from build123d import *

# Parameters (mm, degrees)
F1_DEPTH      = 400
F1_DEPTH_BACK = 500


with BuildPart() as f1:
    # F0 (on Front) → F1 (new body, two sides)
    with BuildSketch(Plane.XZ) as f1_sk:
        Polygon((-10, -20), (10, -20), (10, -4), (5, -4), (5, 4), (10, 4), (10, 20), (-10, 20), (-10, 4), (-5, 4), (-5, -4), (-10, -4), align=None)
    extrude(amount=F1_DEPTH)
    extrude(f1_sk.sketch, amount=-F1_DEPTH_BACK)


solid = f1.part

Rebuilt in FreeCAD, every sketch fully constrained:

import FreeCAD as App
import Part
import Sketcher
Q = App.Units.Quantity

doc = App.newDocument("Part")
params = doc.addObject("Spreadsheet::Sheet", "Params")
for row, (alias, value) in enumerate([
    ("sketch1_width", "20 mm"),
    ("sketch1_width2", "5 mm"),
    ("sketch1_height", "16 mm"),
    ("sketch1_height2", "8 mm"),
    ("pad1_length", "400 mm"),
    ("pad1_length2", "500 mm"),
], start=1):
    params.set(f"A{row}", alias)
    params.set(f"B{row}", "=" + value)
    params.setAlias(f"B{row}", alias)

body = doc.addObject("PartDesign::Body", "Body")

# Sketch on XZ plane
sketch1 = doc.addObject("Sketcher::SketchObject", "Sketch")
body.addObject(sketch1)
sketch1.AttachmentSupport = (doc.XZ_Plane, [""])
sketch1.MapMode = "FlatFace"
sketch1.addGeometry(Part.LineSegment(App.Vector(-10, -20, 0), App.Vector(10, -20, 0)), False)
sketch1.addGeometry(Part.LineSegment(App.Vector(10, -20, 0), App.Vector(10, -4, 0)), False)
sketch1.addGeometry(Part.LineSegment(App.Vector(10, -4, 0), App.Vector(5, -4, 0)), False)
sketch1.addGeometry(Part.LineSegment(App.Vector(5, -4, 0), App.Vector(5, 4, 0)), False)
sketch1.addGeometry(Part.LineSegment(App.Vector(5, 4, 0), App.Vector(10, 4, 0)), False)
sketch1.addGeometry(Part.LineSegment(App.Vector(10, 4, 0), App.Vector(10, 20, 0)), False)
sketch1.addGeometry(Part.LineSegment(App.Vector(10, 20, 0), App.Vector(-10, 20, 0)), False)
sketch1.addGeometry(Part.LineSegment(App.Vector(-10, 20, 0), App.Vector(-10, 4, 0)), False)
sketch1.addGeometry(Part.LineSegment(App.Vector(-10, 4, 0), App.Vector(-5, 4, 0)), False)
sketch1.addGeometry(Part.LineSegment(App.Vector(-5, 4, 0), App.Vector(-5, -4, 0)), False)
sketch1.addGeometry(Part.LineSegment(App.Vector(-5, -4, 0), App.Vector(-10, -4, 0)), False)
sketch1.addGeometry(Part.LineSegment(App.Vector(-10, -4, 0), App.Vector(-10, -20, 0)), False)
sketch1.addConstraint(Sketcher.Constraint("Coincident", 0, 2, 1, 1))
sketch1.addConstraint(Sketcher.Constraint("Coincident", 1, 2, 2, 1))
sketch1.addConstraint(Sketcher.Constraint("Coincident", 2, 2, 3, 1))
sketch1.addConstraint(Sketcher.Constraint("Coincident", 3, 2, 4, 1))
sketch1.addConstraint(Sketcher.Constraint("Coincident", 4, 2, 5, 1))
sketch1.addConstraint(Sketcher.Constraint("Coincident", 5, 2, 6, 1))
sketch1.addConstraint(Sketcher.Constraint("Coincident", 6, 2, 7, 1))
sketch1.addConstraint(Sketcher.Constraint("Coincident", 7, 2, 8, 1))
sketch1.addConstraint(Sketcher.Constraint("Coincident", 8, 2, 9, 1))
sketch1.addConstraint(Sketcher.Constraint("Coincident", 9, 2, 10, 1))
sketch1.addConstraint(Sketcher.Constraint("Coincident", 10, 2, 11, 1))
sketch1.addConstraint(Sketcher.Constraint("Coincident", 11, 2, 0, 1))
sketch1.addConstraint(Sketcher.Constraint("Horizontal", 0))
sketch1.addConstraint(Sketcher.Constraint("Vertical", 1))
sketch1.addConstraint(Sketcher.Constraint("Horizontal", 2))
sketch1.addConstraint(Sketcher.Constraint("Vertical", 3))
sketch1.addConstraint(Sketcher.Constraint("Horizontal", 4))
sketch1.addConstraint(Sketcher.Constraint("Vertical", 5))
sketch1.addConstraint(Sketcher.Constraint("Horizontal", 6))
sketch1.addConstraint(Sketcher.Constraint("Vertical", 7))
sketch1.addConstraint(Sketcher.Constraint("Horizontal", 8))
sketch1.addConstraint(Sketcher.Constraint("Vertical", 9))
sketch1.addConstraint(Sketcher.Constraint("Horizontal", 10))
sketch1.addConstraint(Sketcher.Constraint("Vertical", 11))
sketch1.addConstraint(Sketcher.Constraint("Symmetric", 0, 2, 6, 2, -1, 1))
sketch1.addConstraint(Sketcher.Constraint("Symmetric", 2, 2, 8, 2, -1, 1))
sketch1.addConstraint(Sketcher.Constraint("Symmetric", 4, 2, 10, 2, -1, 1))
sketch1.addConstraint(Sketcher.Constraint("Symmetric", 4, 2, 7, 2, -2))
sketch1.addConstraint(Sketcher.Constraint("DistanceX", 0, 1, 0, 2, Q("20 mm")))
sketch1.addConstraint(Sketcher.Constraint("DistanceX", 2, 2, 2, 1, Q("5 mm")))
sketch1.addConstraint(Sketcher.Constraint("DistanceY", 1, 1, 1, 2, Q("16 mm")))
sketch1.addConstraint(Sketcher.Constraint("DistanceY", 3, 1, 3, 2, Q("8 mm")))
sketch1.setExpression("Constraints[28]", "Params.sketch1_width")
sketch1.setExpression("Constraints[29]", "Params.sketch1_width2")
sketch1.setExpression("Constraints[30]", "Params.sketch1_height")
sketch1.setExpression("Constraints[31]", "Params.sketch1_height2")
pad1 = doc.addObject("PartDesign::Pad", "Pad")
body.addObject(pad1)
pad1.Profile = sketch1
pad1.Type = "TwoLengths"
pad1.setExpression("Length", "Params.pad1_length")
pad1.setExpression("Length2", "Params.pad1_length2")

doc.recompute()
